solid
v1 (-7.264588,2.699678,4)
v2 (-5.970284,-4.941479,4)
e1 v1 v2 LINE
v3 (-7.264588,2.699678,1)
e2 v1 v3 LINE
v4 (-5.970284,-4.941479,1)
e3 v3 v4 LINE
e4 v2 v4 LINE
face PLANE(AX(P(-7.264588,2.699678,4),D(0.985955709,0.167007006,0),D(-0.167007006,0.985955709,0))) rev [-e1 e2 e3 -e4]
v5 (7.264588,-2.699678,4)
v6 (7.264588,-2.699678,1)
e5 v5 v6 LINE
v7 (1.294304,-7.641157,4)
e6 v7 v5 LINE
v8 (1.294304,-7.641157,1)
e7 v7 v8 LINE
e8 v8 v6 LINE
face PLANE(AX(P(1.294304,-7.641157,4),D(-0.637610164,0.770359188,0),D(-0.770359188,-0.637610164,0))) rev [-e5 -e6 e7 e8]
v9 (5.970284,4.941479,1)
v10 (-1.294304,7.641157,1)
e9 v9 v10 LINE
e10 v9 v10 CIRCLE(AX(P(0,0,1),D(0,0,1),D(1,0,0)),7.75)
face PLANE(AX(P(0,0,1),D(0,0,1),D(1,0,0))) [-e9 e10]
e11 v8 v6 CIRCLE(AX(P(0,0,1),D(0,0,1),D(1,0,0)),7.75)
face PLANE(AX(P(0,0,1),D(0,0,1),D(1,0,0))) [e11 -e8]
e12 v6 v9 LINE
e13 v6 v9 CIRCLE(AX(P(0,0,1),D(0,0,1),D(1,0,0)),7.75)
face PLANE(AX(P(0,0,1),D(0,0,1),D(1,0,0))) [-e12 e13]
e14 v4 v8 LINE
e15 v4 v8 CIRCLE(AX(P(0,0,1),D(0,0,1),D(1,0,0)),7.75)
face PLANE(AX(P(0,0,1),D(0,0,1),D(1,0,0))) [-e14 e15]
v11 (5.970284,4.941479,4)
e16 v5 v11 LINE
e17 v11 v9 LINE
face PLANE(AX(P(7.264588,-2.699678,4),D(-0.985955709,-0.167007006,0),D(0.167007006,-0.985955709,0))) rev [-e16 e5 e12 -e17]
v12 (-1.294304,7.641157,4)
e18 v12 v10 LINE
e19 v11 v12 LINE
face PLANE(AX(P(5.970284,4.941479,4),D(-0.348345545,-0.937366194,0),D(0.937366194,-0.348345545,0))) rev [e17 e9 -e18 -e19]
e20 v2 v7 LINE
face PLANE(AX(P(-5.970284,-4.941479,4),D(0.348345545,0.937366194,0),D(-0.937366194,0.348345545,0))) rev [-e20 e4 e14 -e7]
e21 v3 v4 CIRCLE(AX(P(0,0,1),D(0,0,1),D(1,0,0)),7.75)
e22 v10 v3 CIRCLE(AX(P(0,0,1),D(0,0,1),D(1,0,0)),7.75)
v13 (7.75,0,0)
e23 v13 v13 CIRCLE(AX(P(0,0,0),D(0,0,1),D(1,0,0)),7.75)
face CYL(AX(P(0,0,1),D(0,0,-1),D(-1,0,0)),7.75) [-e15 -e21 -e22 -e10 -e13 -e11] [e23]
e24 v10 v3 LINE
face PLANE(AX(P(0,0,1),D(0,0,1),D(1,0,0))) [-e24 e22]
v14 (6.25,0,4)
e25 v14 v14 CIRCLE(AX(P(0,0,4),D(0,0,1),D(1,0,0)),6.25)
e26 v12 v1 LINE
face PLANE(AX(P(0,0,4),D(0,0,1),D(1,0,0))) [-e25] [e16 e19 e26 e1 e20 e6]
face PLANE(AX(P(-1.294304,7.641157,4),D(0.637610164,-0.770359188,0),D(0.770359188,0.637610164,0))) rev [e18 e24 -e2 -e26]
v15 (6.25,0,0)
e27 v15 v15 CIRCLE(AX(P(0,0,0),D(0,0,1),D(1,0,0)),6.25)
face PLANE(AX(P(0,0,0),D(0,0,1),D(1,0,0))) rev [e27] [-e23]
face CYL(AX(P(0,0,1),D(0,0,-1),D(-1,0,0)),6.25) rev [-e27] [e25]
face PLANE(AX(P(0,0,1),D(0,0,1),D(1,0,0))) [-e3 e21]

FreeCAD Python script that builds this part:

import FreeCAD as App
import Part
import Sketcher
from FreeCAD import Vector

doc = App.newDocument("Part")
body = doc.addObject("PartDesign::Body", "Body")

# Sketch on XY plane
sketch1 = body.newObject("Sketcher::SketchObject", "Sketch")
sketch1.AttachmentSupport = (doc.getObject("XY_Plane"), [""])
sketch1.MapMode = "FlatFace"
sketch1.addGeometry(Part.Circle(Vector(0, 0, 0), Vector(0, 0, 1), 8), False)
sketch1.addGeometry(Part.Circle(Vector(0, 0, 0), Vector(0, 0, 1), 6), False)
sketch1.addConstraint(Sketcher.Constraint("Coincident", 0, 3, -1, 1))
sketch1.addConstraint(Sketcher.Constraint("Coincident", 1, 3, -1, 1))
sketch1.addConstraint(Sketcher.Constraint("Diameter", 0, 15.5))
sketch1.addConstraint(Sketcher.Constraint("Diameter", 1, 12.5))
pad1 = body.newObject("PartDesign::Pad", "Pad")
pad1.Profile = sketch1
pad1.Length = 1

# Sketch on XY plane
sketch2 = body.newObject("Sketcher::SketchObject", "Sketch001")
sketch2.AttachmentSupport = (doc.getObject("XY_Plane"), [""])
sketch2.MapMode = "FlatFace"
sketch2.AttachmentOffset = App.Placement(Vector(0, 0, 1), App.Rotation())
sketch2.addGeometry(Part.LineSegment(Vector(-7, 3, 0), Vector(-6, -5, 0)), False)
sketch2.addGeometry(Part.LineSegment(Vector(-6, -5, 0), Vector(1, -8, 0)), False)
sketch2.addGeometry(Part.LineSegment(Vector(1, -8, 0), Vector(7, -3, 0)), False)
sketch2.addGeometry(Part.LineSegment(Vector(7, -3, 0), Vector(6, 5, 0)), False)
sketch2.addGeometry(Part.LineSegment(Vector(6, 5, 0), Vector(-1, 8, 0)), False)
sketch2.addGeometry(Part.LineSegment(Vector(-1, 8, 0), Vector(-7, 3, 0)), False)
sketch2.addGeometry(Part.Circle(Vector(0, 0, 0), Vector(0, 0, 1), 6), False)
sketch2.addConstraint(Sketcher.Constraint("Coincident", 0, 2, 1, 1))
sketch2.addConstraint(Sketcher.Constraint("Coincident", 1, 2, 2, 1))
sketch2.addConstraint(Sketcher.Constraint("Coincident", 2, 2, 3, 1))
sketch2.addConstraint(Sketcher.Constraint("Coincident", 3, 2, 4, 1))
sketch2.addConstraint(Sketcher.Constraint("Coincident", 4, 2, 5, 1))
sketch2.addConstraint(Sketcher.Constraint("Coincident", 5, 2, 0, 1))
sketch2.addConstraint(Sketcher.Constraint("Coincident", 6, 3, -1, 1))
sketch2.addConstraint(Sketcher.Constraint("Symmetric", 0, 2, 3, 2, -1, 1))
sketch2.addConstraint(Sketcher.Constraint("Symmetric", 1, 2, 4, 2, -1, 1))
sketch2.addConstraint(Sketcher.Constraint("Symmetric", 2, 2, 5, 2, -1, 1))
sketch2.addConstraint(Sketcher.Constraint("Equal", 0, 1))
sketch2.addConstraint(Sketcher.Constraint("Equal", 1, 2))
sketch2.addConstraint(Sketcher.Constraint("Diameter", 6, 12.5))
sketch2.addConstraint(Sketcher.Constraint("Distance", 0, 7.75))
sketch2.addConstraint(Sketcher.Constraint("DistanceY", 0, 2, 2, 2, 2.241801))
sketch2.addConstraint(Sketcher.Constraint("DistanceY", 0, 2, -1, 1, 4.941479))
sketch2.addConstraint(Sketcher.Constraint("DistanceX", -1, 1, 2, 2, 7.264588))
pad2 = body.newObject("PartDesign::Pad", "Pad001")
pad2.Profile = sketch2
pad2.Length = 3

doc.recompute()
